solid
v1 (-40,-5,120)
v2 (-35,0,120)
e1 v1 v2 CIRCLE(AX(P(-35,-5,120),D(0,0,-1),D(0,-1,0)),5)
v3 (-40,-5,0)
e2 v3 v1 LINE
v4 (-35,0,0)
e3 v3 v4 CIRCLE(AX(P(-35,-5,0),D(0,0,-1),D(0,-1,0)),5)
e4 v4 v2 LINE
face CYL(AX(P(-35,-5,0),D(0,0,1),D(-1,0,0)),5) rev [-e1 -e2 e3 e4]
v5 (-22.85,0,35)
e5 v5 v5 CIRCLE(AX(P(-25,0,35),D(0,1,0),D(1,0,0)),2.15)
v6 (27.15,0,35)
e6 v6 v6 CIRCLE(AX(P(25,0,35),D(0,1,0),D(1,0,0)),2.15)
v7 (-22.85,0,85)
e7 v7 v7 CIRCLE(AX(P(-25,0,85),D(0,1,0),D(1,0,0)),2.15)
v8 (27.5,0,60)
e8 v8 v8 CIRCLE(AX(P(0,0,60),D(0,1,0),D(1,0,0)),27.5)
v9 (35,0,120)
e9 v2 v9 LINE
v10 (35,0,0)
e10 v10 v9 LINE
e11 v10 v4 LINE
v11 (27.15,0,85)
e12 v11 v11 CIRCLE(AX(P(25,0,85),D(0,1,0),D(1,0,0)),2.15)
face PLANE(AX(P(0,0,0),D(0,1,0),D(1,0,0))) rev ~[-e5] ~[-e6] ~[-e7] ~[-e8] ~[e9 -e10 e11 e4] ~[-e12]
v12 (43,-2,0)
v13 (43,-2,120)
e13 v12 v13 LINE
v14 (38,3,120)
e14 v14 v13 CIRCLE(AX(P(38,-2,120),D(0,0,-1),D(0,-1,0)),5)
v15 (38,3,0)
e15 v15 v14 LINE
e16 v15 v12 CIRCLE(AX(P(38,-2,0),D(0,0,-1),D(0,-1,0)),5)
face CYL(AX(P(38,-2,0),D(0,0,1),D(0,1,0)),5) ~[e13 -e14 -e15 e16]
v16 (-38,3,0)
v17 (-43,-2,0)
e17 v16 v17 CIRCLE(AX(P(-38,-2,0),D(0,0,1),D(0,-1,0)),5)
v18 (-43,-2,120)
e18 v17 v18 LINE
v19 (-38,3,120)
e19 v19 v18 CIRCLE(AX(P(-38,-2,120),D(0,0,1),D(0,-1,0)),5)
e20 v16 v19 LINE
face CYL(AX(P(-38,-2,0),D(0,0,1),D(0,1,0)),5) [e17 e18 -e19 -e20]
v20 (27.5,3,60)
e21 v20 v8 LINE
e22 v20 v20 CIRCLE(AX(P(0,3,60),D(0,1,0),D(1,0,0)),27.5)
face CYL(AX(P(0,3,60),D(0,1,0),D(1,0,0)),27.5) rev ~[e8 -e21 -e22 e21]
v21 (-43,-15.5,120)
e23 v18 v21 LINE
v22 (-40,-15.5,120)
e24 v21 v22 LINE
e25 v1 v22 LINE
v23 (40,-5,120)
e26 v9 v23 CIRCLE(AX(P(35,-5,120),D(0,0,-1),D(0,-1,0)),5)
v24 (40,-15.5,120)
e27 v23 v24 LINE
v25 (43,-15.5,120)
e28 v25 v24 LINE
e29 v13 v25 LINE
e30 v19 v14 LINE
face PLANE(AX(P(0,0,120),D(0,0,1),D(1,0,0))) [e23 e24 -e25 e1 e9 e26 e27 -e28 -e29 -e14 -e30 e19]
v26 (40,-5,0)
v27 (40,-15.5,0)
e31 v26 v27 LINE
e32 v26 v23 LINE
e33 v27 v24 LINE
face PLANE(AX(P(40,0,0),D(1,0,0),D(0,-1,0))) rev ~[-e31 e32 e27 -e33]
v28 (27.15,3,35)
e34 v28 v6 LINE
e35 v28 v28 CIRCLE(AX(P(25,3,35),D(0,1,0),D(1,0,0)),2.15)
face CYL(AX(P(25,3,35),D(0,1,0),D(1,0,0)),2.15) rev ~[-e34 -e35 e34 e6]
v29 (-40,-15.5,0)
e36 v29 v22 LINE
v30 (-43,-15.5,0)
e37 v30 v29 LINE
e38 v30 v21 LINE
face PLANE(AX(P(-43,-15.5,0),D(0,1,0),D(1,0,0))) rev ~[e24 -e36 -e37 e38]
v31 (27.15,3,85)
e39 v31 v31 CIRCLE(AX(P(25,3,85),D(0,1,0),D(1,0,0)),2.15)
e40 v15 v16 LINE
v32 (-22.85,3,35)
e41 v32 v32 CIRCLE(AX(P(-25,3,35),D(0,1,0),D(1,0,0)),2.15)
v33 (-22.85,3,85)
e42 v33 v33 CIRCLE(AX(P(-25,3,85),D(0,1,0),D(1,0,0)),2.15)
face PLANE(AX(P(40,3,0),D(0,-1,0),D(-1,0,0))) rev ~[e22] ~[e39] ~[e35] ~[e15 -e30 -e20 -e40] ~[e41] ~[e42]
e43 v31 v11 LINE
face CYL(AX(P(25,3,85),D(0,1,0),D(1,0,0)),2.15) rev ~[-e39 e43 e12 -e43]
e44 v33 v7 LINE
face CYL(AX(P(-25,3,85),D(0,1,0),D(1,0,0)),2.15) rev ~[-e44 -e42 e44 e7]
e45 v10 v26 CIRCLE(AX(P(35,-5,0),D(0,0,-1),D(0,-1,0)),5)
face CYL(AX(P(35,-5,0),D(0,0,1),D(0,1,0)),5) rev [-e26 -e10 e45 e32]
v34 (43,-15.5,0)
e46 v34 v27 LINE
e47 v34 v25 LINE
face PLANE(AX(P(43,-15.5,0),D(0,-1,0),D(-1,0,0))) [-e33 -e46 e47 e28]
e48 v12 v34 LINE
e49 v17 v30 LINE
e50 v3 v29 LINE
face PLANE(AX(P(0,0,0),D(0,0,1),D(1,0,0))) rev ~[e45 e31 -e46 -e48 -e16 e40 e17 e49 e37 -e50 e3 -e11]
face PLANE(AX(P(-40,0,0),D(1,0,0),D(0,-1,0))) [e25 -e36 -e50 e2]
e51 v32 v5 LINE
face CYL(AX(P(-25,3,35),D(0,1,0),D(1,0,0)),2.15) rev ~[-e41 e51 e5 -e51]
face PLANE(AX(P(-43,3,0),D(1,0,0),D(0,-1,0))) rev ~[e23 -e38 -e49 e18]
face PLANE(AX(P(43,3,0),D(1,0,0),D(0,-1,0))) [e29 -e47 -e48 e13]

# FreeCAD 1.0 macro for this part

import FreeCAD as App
import Part
import Sketcher
from FreeCAD import Vector


def edges_at(feature, points):
    """Names of the edges that pass closest to the given points."""
    edges = feature.Shape.Edges
    near = lambda p: min(range(len(edges)), key=lambda i: edges[i].distToShape(Part.Vertex(*p))[0])
    return sorted({f"Edge{near(p) + 1}" for p in points})

doc = App.newDocument("Part")
body = doc.addObject("PartDesign::Body", "Body")

# Sketch on XY plane
sketch1 = doc.addObject("Sketcher::SketchObject", "Sketch")
body.addObject(sketch1)
sketch1.AttachmentSupport = (doc.XY_Plane, [""])
sketch1.MapMode = "FlatFace"
sketch1.addGeometry([
    Part.LineSegment(Vector(-43, 3, 0), Vector(-43, -15.5, 0)),  # 0
    Part.LineSegment(Vector(-43, -15.5, 0), Vector(-40, -15.5, 0)),  # 1
    Part.LineSegment(Vector(-40, -15.5, 0), Vector(-40, 0, 0)),  # 2
    Part.LineSegment(Vector(-40, 0, 0), Vector(40, 0, 0)),  # 3
    Part.LineSegment(Vector(40, 0, 0), Vector(40, -15.5, 0)),  # 4
    Part.LineSegment(Vector(40, -15.5, 0), Vector(43, -15.5, 0)),  # 5
    Part.LineSegment(Vector(43, -15.5, 0), Vector(43, 3, 0)),  # 6
    Part.LineSegment(Vector(43, 3, 0), Vector(-43, 3, 0)),  # 7
], False)
sketch1.addConstraint([
    Sketcher.Constraint("Coincident", 0, 2, 1, 1),
    Sketcher.Constraint("Coincident", 1, 2, 2, 1),
    Sketcher.Constraint("Coincident", 2, 2, 3, 1),
    Sketcher.Constraint("Coincident", 3, 2, 4, 1),
    Sketcher.Constraint("Coincident", 4, 2, 5, 1),
    Sketcher.Constraint("Coincident", 5, 2, 6, 1),
    Sketcher.Constraint("Coincident", 6, 2, 7, 1),
    Sketcher.Constraint("Coincident", 7, 2, 0, 1),
    Sketcher.Constraint("Vertical", 0),
    Sketcher.Constraint("Horizontal", 1),
    Sketcher.Constraint("Vertical", 2),
    Sketcher.Constraint("Horizontal", 3),
    Sketcher.Constraint("Vertical", 4),
    Sketcher.Constraint("Horizontal", 5),
    Sketcher.Constraint("Vertical", 6),
    Sketcher.Constraint("Horizontal", 7),
    Sketcher.Constraint("Symmetric", 2, 2, 3, 2, -1, 1),
    Sketcher.Constraint("Symmetric", 0, 2, 5, 2, -2),
    Sketcher.Constraint("DistanceX", 1, 1, 1, 2, 3.0),
    Sketcher.Constraint("DistanceY", 2, 1, 2, 2, 15.5),
    Sketcher.Constraint("DistanceX", 1, 2, -1, 1, 40.0),
    Sketcher.Constraint("DistanceY", -1, 1, 6, 2, 3.0),
])
pad1 = doc.addObject("PartDesign::Pad", "Pad")
body.addObject(pad1)
pad1.Profile = sketch1
pad1.Length = 120

# Sketch on XZ plane
sketch2 = doc.addObject("Sketcher::SketchObject", "Sketch001")
body.addObject(sketch2)
sketch2.AttachmentSupport = (doc.XZ_Plane, [""])
sketch2.MapMode = "FlatFace"
sketch2.AttachmentOffset = App.Placement(Vector(0, 0, -3), App.Rotation())
sketch2.addGeometry([
    Part.Circle(Vector(25, 85, 0), Vector(0, 0, 1), 2.1),  # 0
    Part.Circle(Vector(-25, 85, 0), Vector(0, 0, 1), 2.1),  # 1
    Part.Circle(Vector(25, 35, 0), Vector(0, 0, 1), 2.1),  # 2
    Part.Circle(Vector(-25, 35, 0), Vector(0, 0, 1), 2.1),  # 3
    Part.Circle(Vector(0, 60, 0), Vector(0, 0, 1), 27.5),  # 4
], False)
sketch2.addConstraint([
    Sketcher.Constraint("Equal", 0, 1),
    Sketcher.Constraint("Equal", 1, 2),
    Sketcher.Constraint("Equal", 2, 3),
    Sketcher.Constraint("Symmetric", 0, 3, 1, 3, -2),
    Sketcher.Constraint("Symmetric", 2, 3, 3, 3, -2),
    Sketcher.Constraint("PointOnObject", 4, 3, -2),
    Sketcher.Constraint("Vertical", 0, 3, 2, 3),
    Sketcher.Constraint("Diameter", 4, 55.0),
    Sketcher.Constraint("Diameter", 0, 4.3),
    Sketcher.Constraint("DistanceX", 1, 3, 0, 3, 50.0),
    Sketcher.Constraint("DistanceY", 2, 3, 0, 3, 50.0),
    Sketcher.Constraint("DistanceY", -1, 1, 0, 3, 85.0),
    Sketcher.Constraint("DistanceY", -1, 1, 4, 3, 60.0),
])
pocket1 = doc.addObject("PartDesign::Pocket", "Pocket")
body.addObject(pocket1)
pocket1.Profile = sketch2
pocket1.Type = "ThroughAll"
pocket1.Reversed = True
doc.recompute()

fillet = doc.addObject("PartDesign::Fillet", "Fillet")
body.addObject(fillet)
fillet.Base = (pocket1, edges_at(pocket1, [
    (40, 0, 60),
    (43, 3, 60),
    (-40, 0, 60),
    (-43, 3, 60),
]))
fillet.Radius = 5

doc.recompute()
